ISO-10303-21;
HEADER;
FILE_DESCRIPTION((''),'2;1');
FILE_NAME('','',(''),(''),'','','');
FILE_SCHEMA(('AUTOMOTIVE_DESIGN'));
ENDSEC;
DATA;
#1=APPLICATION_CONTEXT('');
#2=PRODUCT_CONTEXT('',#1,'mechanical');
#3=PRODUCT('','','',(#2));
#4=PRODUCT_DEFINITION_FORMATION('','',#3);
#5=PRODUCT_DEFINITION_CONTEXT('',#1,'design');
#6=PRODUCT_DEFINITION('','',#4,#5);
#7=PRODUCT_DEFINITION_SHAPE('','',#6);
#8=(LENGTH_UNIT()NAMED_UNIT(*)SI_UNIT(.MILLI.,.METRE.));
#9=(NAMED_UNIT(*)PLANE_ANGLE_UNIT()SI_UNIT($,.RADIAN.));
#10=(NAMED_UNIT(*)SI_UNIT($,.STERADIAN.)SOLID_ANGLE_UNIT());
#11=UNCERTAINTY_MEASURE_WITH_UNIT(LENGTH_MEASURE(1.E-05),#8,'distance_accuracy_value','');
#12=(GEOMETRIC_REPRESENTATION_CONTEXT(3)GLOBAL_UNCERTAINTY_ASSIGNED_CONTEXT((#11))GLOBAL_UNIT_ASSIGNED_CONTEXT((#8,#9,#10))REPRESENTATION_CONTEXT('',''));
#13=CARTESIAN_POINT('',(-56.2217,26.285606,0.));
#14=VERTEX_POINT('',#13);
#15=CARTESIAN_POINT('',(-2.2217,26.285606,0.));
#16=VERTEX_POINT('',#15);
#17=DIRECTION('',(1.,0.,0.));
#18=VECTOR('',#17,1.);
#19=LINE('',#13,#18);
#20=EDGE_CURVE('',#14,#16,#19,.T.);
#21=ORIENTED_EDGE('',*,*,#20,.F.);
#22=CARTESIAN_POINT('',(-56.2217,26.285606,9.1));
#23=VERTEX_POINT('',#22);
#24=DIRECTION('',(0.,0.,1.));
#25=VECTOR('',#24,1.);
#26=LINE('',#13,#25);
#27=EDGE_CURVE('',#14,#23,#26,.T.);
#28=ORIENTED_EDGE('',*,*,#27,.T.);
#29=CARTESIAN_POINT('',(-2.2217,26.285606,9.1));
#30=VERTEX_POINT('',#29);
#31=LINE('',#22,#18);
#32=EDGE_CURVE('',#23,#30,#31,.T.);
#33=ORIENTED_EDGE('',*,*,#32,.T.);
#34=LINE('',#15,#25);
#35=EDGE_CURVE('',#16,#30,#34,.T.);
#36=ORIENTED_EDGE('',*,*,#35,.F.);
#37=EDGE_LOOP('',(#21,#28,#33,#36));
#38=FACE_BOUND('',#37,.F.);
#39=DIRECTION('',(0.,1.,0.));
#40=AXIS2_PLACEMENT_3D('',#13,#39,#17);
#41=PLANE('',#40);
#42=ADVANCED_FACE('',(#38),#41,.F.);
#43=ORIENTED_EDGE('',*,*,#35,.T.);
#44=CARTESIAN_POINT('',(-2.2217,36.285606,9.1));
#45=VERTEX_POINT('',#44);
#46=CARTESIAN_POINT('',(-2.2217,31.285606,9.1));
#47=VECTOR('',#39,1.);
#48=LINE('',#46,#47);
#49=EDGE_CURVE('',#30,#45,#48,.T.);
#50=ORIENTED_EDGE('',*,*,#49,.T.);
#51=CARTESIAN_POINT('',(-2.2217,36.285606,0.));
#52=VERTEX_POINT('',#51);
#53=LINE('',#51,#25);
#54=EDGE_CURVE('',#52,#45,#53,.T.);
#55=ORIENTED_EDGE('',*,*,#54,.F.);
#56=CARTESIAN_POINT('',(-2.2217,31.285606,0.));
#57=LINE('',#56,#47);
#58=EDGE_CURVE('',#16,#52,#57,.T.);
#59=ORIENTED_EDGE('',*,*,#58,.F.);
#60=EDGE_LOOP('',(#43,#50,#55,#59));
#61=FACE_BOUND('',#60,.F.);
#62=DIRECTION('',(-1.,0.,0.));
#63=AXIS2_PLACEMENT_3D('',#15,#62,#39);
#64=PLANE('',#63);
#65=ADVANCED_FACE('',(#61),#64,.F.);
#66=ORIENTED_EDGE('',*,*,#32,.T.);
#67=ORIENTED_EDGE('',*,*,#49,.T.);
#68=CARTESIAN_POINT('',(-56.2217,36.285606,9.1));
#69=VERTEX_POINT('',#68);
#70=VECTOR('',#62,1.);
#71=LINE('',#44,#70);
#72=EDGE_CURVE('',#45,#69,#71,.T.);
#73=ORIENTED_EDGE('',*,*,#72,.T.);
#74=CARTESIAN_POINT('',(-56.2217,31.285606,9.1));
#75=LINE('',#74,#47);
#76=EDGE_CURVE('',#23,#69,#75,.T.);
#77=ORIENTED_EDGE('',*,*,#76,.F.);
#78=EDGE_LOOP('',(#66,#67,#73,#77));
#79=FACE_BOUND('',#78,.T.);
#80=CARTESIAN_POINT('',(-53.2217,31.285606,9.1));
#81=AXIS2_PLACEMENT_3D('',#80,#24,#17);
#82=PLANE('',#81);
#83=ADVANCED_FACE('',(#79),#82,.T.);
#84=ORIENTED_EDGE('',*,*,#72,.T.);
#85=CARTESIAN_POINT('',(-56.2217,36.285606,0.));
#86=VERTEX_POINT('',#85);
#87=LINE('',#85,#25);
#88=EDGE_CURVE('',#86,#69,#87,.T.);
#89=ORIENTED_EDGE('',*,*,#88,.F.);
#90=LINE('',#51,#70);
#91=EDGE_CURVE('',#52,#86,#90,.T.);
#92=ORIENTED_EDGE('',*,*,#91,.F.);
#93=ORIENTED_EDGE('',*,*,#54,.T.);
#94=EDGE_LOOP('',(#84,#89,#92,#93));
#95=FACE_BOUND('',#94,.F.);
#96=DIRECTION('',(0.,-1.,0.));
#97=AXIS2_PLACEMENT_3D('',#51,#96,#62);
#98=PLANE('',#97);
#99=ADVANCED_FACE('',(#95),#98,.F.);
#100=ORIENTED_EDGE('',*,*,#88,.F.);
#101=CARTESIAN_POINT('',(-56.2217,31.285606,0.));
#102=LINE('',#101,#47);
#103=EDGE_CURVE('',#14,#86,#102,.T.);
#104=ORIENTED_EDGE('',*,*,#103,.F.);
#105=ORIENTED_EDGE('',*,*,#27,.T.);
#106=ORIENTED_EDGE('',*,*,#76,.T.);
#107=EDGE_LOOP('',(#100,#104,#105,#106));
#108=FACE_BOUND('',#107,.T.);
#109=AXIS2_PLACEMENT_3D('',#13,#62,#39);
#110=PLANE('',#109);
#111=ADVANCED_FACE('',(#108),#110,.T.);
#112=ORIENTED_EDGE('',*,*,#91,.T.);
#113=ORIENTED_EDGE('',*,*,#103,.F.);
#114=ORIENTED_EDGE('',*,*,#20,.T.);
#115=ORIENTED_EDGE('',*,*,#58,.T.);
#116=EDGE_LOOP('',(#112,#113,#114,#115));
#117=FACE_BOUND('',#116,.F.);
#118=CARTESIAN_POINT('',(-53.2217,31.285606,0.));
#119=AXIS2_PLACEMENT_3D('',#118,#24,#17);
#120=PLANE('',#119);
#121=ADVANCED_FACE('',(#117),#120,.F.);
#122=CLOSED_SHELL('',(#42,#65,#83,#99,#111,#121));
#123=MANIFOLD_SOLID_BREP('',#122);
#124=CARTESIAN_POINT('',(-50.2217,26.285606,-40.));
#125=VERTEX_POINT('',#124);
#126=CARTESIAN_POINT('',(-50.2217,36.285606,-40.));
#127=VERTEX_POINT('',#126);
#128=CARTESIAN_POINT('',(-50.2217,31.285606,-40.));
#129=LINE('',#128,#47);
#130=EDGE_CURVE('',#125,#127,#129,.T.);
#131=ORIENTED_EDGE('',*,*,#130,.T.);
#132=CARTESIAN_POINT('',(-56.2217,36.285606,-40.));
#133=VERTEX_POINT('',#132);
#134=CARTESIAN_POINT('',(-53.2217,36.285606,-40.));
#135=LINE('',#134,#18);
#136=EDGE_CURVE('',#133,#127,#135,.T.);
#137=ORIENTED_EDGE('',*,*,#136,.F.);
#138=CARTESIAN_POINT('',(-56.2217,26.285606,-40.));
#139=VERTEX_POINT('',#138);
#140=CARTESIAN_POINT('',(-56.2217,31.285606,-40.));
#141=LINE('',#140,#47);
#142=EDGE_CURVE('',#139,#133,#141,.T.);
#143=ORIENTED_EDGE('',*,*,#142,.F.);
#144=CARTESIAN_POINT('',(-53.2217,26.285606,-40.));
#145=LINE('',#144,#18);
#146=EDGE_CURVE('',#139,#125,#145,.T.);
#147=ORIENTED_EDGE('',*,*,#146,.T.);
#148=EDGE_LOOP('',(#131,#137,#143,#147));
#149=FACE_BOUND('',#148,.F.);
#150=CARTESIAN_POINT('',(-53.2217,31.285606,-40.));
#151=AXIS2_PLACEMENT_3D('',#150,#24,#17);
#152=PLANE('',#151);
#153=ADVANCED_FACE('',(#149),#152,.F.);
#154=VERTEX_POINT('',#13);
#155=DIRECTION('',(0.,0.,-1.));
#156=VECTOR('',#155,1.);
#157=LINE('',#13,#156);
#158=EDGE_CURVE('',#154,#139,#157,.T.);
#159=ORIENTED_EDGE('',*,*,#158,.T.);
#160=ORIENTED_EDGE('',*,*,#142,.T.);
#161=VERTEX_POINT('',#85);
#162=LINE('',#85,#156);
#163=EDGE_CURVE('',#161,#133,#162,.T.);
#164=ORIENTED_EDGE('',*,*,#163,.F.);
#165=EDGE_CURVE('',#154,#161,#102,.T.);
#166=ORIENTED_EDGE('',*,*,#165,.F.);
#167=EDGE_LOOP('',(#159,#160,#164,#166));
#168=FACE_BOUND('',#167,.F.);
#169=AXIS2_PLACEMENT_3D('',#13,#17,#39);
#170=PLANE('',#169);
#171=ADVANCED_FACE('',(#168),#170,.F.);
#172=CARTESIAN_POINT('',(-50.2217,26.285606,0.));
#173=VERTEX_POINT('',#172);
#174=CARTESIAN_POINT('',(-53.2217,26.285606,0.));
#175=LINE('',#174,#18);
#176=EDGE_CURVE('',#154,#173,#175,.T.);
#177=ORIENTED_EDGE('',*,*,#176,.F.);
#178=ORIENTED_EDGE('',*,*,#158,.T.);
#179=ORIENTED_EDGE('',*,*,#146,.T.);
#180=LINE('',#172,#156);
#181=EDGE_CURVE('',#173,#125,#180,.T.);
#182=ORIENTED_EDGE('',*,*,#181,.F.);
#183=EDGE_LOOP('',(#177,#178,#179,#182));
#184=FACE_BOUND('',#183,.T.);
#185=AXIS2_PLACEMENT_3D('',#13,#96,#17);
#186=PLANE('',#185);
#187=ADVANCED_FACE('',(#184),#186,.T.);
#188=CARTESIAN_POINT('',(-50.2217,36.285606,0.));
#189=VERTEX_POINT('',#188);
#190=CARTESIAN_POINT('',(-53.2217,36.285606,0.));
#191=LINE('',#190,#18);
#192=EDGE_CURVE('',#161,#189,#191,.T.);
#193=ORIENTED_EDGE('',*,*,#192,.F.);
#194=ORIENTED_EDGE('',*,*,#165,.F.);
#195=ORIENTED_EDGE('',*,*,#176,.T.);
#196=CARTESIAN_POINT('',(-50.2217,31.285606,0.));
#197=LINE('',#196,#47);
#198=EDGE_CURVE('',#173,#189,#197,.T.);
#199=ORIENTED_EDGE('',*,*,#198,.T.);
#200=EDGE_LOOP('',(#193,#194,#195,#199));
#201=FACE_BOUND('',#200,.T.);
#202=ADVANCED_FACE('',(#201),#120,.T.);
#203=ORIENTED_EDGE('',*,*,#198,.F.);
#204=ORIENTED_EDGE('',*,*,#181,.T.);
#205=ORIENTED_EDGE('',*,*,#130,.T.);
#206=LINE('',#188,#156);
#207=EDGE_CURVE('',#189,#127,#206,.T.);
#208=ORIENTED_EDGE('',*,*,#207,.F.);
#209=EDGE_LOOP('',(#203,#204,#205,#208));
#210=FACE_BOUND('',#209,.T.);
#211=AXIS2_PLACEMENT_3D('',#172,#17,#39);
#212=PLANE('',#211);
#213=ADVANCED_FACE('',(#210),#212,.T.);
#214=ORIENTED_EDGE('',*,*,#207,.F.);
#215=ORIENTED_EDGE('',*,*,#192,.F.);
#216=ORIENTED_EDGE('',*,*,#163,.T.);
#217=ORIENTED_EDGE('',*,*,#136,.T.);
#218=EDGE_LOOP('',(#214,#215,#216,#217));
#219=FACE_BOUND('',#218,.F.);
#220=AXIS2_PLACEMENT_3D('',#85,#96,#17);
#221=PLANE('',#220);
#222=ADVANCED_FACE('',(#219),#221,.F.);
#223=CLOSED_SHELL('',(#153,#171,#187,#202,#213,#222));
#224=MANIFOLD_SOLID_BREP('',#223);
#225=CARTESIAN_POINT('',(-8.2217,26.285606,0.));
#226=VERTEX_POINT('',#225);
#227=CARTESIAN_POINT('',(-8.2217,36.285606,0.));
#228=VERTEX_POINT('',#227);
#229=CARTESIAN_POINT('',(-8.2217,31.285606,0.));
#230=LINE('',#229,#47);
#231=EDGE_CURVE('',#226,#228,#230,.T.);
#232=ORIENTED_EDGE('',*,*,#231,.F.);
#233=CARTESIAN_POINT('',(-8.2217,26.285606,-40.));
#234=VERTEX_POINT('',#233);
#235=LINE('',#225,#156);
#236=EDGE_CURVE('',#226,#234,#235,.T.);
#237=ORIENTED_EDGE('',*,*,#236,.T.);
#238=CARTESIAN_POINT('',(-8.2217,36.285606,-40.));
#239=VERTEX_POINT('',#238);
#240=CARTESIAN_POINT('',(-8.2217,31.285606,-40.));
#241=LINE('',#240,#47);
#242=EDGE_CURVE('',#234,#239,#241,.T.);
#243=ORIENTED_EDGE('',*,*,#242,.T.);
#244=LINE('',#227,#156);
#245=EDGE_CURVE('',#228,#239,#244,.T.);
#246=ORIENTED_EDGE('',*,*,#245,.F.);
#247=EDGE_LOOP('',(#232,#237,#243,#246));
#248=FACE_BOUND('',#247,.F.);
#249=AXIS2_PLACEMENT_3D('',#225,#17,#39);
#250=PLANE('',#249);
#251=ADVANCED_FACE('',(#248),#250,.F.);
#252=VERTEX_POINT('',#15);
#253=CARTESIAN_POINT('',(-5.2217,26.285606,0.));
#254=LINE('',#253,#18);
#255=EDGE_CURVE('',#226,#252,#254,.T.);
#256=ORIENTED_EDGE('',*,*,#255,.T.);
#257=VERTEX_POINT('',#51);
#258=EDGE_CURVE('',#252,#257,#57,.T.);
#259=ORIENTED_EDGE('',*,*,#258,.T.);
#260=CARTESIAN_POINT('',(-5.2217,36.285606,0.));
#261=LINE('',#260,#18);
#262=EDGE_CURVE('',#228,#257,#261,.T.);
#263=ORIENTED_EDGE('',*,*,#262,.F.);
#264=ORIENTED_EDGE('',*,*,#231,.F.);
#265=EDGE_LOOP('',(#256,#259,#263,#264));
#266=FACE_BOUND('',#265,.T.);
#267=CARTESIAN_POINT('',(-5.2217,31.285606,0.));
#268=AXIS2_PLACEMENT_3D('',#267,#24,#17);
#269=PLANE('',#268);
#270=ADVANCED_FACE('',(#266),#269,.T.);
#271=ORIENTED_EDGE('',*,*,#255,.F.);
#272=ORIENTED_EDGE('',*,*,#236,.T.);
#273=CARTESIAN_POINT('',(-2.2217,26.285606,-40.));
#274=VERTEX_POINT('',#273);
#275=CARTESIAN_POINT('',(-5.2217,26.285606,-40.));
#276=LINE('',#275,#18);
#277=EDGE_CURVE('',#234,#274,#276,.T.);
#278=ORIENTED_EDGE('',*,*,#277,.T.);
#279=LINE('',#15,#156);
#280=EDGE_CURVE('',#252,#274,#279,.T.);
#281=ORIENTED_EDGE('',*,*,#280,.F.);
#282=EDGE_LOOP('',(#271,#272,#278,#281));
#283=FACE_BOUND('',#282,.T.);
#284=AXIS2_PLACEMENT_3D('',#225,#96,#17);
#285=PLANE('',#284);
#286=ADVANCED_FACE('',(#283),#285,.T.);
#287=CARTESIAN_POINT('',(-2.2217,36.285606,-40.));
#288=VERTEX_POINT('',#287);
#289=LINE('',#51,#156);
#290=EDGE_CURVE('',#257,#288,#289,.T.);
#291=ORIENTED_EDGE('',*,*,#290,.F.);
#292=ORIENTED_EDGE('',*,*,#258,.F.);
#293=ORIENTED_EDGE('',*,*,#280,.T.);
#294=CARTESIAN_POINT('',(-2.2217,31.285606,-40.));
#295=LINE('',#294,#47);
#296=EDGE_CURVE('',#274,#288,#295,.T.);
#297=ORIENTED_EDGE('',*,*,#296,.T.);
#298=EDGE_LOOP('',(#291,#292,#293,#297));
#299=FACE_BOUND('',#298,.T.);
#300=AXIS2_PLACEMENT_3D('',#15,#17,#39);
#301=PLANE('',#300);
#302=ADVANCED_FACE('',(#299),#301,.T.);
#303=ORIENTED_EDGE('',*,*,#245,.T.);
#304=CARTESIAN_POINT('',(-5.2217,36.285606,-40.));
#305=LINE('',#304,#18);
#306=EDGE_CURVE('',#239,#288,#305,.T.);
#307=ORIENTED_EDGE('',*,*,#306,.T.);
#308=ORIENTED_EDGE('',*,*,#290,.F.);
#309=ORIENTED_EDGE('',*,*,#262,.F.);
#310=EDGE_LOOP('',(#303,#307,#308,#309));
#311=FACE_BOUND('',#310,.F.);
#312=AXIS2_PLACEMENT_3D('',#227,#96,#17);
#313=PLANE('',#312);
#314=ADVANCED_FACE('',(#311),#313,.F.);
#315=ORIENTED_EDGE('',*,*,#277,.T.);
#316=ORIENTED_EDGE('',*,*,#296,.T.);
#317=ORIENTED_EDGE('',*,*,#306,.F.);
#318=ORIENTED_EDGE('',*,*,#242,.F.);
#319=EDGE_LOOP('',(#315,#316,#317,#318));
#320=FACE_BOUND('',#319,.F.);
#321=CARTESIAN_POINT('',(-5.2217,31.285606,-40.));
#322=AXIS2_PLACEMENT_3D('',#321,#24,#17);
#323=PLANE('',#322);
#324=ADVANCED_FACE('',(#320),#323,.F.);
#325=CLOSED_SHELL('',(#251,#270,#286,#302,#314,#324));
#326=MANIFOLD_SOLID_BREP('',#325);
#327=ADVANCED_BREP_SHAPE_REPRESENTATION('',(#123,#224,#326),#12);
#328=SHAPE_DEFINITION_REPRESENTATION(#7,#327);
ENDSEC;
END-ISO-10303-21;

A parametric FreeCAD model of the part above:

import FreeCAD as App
import Part
import Sketcher


def add_polygon(sketch, points):
    """Adds a closed chain of lines whose ends are joined by coincident constraints."""
    first, n = sketch.GeometryCount, len(points)
    for a, b in zip(points, points[1:] + points[:1]):
        sketch.addGeometry(Part.LineSegment(App.Vector(*a, 0), App.Vector(*b, 0)), False)
    for i in range(n):
        sketch.addConstraint(Sketcher.Constraint("Coincident", first + i, 2, first + (i + 1) % n, 1))

doc = App.newDocument("Part")
body = doc.addObject("PartDesign::Body", "Body")
body.AllowCompound = True

# Sketch on XY plane
sketch1 = doc.addObject("Sketcher::SketchObject", "Sketch")
body.addObject(sketch1)
sketch1.AttachmentSupport = (doc.XY_Plane, [""])
sketch1.MapMode = "FlatFace"
add_polygon(sketch1, [(-8, 36), (-8, 26), (-2, 26), (-2, 36)])  # lines 0-3
add_polygon(sketch1, [(-56, 36), (-56, 26), (-50, 26), (-50, 36)])  # lines 4-7
sketch1.addConstraint([
    Sketcher.Constraint("Vertical", 0),
    Sketcher.Constraint("Horizontal", 1),
    Sketcher.Constraint("Vertical", 2),
    Sketcher.Constraint("Horizontal", 3),
    Sketcher.Constraint("Vertical", 4),
    Sketcher.Constraint("Horizontal", 5),
    Sketcher.Constraint("Vertical", 6),
    Sketcher.Constraint("Horizontal", 7),
    Sketcher.Constraint("Horizontal", 1, 2, 4, 2),
    Sketcher.Constraint("Horizontal", 3, 2, 6, 2),
    Sketcher.Constraint("Equal", 3, 5),
    Sketcher.Constraint("DistanceX", 1, 1, 1, 2, 6.0),
    Sketcher.Constraint("DistanceY", 0, 2, 0, 1, 10.0),
    Sketcher.Constraint("DistanceX", 4, 2, 0, 2, 48.0),
    Sketcher.Constraint("DistanceX", 0, 2, -1, 1, 8.2217),
    Sketcher.Constraint("DistanceY", -1, 1, 0, 2, 26.285606),
])
pad1 = doc.addObject("PartDesign::Pad", "Pad")
body.addObject(pad1)
pad1.Profile = sketch1
pad1.Length = 40
pad1.Reversed = True
body2 = doc.addObject("PartDesign::Body", "Body001")

# Sketch on XY plane
sketch2 = doc.addObject("Sketcher::SketchObject", "Sketch001")
body2.addObject(sketch2)
sketch2.AttachmentSupport = (doc.getObject("XY_Plane001"), [""])
sketch2.MapMode = "FlatFace"
add_polygon(sketch2, [(-56, 36), (-56, 26), (-2, 26), (-2, 36)])  # lines 0-3
sketch2.addConstraint([
    Sketcher.Constraint("Vertical", 0),
    Sketcher.Constraint("Horizontal", 1),
    Sketcher.Constraint("Vertical", 2),
    Sketcher.Constraint("Horizontal", 3),
    Sketcher.Constraint("DistanceX", 1, 1, 1, 2, 54.0),
    Sketcher.Constraint("DistanceY", 0, 2, 0, 1, 10.0),
    Sketcher.Constraint("DistanceX", 0, 2, -1, 1, 56.2217),
    Sketcher.Constraint("DistanceY", -1, 1, 0, 2, 26.285606),
])
pad2 = doc.addObject("PartDesign::Pad", "Pad001")
body2.addObject(pad2)
pad2.Profile = sketch2
pad2.Length = 9.1

doc.recompute()
